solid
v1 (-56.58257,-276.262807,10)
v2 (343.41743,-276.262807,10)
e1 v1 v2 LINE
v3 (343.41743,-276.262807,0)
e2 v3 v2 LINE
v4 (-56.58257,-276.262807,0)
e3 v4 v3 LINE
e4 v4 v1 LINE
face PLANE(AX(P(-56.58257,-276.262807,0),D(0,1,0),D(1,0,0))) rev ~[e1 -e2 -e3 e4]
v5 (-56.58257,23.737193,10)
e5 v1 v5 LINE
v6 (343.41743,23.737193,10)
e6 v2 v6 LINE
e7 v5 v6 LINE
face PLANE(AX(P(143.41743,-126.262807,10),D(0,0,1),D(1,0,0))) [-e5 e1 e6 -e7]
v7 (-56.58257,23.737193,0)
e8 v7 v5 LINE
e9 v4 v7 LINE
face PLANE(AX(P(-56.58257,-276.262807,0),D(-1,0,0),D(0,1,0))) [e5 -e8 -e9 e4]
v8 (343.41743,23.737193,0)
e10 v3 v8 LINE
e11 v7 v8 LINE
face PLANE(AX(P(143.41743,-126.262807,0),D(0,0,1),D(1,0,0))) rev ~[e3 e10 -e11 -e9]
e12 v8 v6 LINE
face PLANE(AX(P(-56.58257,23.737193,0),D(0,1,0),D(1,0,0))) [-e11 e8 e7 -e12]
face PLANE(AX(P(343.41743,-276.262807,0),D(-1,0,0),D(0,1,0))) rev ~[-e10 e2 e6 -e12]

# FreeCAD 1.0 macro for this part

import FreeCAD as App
import Part
import Sketcher

V = App.Vector
Q = App.Units.Quantity

doc = App.newDocument("Part")
params = doc.addObject("Spreadsheet::Sheet", "Params")
for row, (alias, value) in enumerate([
    ("sketch1_width", "400 mm"),
    ("sketch1_height", "300 mm"),
    ("pad1_length", "10 mm"),
], start=1):
    params.set(f"A{row}", alias)
    params.set(f"B{row}", "=" + value)
    params.setAlias(f"B{row}", alias)

body = doc.addObject("PartDesign::Body", "Body")

# Sketch on XY plane
sketch1 = doc.addObject("Sketcher::SketchObject", "Sketch")
body.addObject(sketch1)
sketch1.AttachmentSupport = (doc.XY_Plane, [""])
sketch1.MapMode = "FlatFace"
sketch1.addGeometry(Part.LineSegment(V(-57, 24, 0), V(-57, -276, 0)), False)
sketch1.addGeometry(Part.LineSegment(V(-57, -276, 0), V(343, -276, 0)), False)
sketch1.addGeometry(Part.LineSegment(V(343, -276, 0), V(343, 24, 0)), False)
sketch1.addGeometry(Part.LineSegment(V(343, 24, 0), V(-57, 24, 0)), False)
sketch1.addConstraint(Sketcher.Constraint("Coincident", 0, 2, 1, 1))
sketch1.addConstraint(Sketcher.Constraint("Coincident", 1, 2, 2, 1))
sketch1.addConstraint(Sketcher.Constraint("Coincident", 2, 2, 3, 1))
sketch1.addConstraint(Sketcher.Constraint("Coincident", 3, 2, 0, 1))
sketch1.addConstraint(Sketcher.Constraint("Vertical", 0))
sketch1.addConstraint(Sketcher.Constraint("Horizontal", 1))
sketch1.addConstraint(Sketcher.Constraint("Vertical", 2))
sketch1.addConstraint(Sketcher.Constraint("Horizontal", 3))
sketch1.addConstraint(Sketcher.Constraint("DistanceX", 1, 1, 1, 2, Q("400 mm")))
sketch1.addConstraint(Sketcher.Constraint("DistanceY", 0, 2, 0, 1, Q("300 mm")))
sketch1.addConstraint(Sketcher.Constraint("DistanceX", 0, 2, -1, 1, Q("56.58257 mm")))
sketch1.addConstraint(Sketcher.Constraint("DistanceY", 0, 2, -1, 1, Q("276.262807 mm")))
sketch1.setExpression("Constraints[8]", "Params.sketch1_width")
sketch1.setExpression("Constraints[9]", "Params.sketch1_height")
pad1 = doc.addObject("PartDesign::Pad", "Pad")
body.addObject(pad1)
pad1.Profile = sketch1
pad1.setExpression("Length", "Params.pad1_length")

doc.recompute()
